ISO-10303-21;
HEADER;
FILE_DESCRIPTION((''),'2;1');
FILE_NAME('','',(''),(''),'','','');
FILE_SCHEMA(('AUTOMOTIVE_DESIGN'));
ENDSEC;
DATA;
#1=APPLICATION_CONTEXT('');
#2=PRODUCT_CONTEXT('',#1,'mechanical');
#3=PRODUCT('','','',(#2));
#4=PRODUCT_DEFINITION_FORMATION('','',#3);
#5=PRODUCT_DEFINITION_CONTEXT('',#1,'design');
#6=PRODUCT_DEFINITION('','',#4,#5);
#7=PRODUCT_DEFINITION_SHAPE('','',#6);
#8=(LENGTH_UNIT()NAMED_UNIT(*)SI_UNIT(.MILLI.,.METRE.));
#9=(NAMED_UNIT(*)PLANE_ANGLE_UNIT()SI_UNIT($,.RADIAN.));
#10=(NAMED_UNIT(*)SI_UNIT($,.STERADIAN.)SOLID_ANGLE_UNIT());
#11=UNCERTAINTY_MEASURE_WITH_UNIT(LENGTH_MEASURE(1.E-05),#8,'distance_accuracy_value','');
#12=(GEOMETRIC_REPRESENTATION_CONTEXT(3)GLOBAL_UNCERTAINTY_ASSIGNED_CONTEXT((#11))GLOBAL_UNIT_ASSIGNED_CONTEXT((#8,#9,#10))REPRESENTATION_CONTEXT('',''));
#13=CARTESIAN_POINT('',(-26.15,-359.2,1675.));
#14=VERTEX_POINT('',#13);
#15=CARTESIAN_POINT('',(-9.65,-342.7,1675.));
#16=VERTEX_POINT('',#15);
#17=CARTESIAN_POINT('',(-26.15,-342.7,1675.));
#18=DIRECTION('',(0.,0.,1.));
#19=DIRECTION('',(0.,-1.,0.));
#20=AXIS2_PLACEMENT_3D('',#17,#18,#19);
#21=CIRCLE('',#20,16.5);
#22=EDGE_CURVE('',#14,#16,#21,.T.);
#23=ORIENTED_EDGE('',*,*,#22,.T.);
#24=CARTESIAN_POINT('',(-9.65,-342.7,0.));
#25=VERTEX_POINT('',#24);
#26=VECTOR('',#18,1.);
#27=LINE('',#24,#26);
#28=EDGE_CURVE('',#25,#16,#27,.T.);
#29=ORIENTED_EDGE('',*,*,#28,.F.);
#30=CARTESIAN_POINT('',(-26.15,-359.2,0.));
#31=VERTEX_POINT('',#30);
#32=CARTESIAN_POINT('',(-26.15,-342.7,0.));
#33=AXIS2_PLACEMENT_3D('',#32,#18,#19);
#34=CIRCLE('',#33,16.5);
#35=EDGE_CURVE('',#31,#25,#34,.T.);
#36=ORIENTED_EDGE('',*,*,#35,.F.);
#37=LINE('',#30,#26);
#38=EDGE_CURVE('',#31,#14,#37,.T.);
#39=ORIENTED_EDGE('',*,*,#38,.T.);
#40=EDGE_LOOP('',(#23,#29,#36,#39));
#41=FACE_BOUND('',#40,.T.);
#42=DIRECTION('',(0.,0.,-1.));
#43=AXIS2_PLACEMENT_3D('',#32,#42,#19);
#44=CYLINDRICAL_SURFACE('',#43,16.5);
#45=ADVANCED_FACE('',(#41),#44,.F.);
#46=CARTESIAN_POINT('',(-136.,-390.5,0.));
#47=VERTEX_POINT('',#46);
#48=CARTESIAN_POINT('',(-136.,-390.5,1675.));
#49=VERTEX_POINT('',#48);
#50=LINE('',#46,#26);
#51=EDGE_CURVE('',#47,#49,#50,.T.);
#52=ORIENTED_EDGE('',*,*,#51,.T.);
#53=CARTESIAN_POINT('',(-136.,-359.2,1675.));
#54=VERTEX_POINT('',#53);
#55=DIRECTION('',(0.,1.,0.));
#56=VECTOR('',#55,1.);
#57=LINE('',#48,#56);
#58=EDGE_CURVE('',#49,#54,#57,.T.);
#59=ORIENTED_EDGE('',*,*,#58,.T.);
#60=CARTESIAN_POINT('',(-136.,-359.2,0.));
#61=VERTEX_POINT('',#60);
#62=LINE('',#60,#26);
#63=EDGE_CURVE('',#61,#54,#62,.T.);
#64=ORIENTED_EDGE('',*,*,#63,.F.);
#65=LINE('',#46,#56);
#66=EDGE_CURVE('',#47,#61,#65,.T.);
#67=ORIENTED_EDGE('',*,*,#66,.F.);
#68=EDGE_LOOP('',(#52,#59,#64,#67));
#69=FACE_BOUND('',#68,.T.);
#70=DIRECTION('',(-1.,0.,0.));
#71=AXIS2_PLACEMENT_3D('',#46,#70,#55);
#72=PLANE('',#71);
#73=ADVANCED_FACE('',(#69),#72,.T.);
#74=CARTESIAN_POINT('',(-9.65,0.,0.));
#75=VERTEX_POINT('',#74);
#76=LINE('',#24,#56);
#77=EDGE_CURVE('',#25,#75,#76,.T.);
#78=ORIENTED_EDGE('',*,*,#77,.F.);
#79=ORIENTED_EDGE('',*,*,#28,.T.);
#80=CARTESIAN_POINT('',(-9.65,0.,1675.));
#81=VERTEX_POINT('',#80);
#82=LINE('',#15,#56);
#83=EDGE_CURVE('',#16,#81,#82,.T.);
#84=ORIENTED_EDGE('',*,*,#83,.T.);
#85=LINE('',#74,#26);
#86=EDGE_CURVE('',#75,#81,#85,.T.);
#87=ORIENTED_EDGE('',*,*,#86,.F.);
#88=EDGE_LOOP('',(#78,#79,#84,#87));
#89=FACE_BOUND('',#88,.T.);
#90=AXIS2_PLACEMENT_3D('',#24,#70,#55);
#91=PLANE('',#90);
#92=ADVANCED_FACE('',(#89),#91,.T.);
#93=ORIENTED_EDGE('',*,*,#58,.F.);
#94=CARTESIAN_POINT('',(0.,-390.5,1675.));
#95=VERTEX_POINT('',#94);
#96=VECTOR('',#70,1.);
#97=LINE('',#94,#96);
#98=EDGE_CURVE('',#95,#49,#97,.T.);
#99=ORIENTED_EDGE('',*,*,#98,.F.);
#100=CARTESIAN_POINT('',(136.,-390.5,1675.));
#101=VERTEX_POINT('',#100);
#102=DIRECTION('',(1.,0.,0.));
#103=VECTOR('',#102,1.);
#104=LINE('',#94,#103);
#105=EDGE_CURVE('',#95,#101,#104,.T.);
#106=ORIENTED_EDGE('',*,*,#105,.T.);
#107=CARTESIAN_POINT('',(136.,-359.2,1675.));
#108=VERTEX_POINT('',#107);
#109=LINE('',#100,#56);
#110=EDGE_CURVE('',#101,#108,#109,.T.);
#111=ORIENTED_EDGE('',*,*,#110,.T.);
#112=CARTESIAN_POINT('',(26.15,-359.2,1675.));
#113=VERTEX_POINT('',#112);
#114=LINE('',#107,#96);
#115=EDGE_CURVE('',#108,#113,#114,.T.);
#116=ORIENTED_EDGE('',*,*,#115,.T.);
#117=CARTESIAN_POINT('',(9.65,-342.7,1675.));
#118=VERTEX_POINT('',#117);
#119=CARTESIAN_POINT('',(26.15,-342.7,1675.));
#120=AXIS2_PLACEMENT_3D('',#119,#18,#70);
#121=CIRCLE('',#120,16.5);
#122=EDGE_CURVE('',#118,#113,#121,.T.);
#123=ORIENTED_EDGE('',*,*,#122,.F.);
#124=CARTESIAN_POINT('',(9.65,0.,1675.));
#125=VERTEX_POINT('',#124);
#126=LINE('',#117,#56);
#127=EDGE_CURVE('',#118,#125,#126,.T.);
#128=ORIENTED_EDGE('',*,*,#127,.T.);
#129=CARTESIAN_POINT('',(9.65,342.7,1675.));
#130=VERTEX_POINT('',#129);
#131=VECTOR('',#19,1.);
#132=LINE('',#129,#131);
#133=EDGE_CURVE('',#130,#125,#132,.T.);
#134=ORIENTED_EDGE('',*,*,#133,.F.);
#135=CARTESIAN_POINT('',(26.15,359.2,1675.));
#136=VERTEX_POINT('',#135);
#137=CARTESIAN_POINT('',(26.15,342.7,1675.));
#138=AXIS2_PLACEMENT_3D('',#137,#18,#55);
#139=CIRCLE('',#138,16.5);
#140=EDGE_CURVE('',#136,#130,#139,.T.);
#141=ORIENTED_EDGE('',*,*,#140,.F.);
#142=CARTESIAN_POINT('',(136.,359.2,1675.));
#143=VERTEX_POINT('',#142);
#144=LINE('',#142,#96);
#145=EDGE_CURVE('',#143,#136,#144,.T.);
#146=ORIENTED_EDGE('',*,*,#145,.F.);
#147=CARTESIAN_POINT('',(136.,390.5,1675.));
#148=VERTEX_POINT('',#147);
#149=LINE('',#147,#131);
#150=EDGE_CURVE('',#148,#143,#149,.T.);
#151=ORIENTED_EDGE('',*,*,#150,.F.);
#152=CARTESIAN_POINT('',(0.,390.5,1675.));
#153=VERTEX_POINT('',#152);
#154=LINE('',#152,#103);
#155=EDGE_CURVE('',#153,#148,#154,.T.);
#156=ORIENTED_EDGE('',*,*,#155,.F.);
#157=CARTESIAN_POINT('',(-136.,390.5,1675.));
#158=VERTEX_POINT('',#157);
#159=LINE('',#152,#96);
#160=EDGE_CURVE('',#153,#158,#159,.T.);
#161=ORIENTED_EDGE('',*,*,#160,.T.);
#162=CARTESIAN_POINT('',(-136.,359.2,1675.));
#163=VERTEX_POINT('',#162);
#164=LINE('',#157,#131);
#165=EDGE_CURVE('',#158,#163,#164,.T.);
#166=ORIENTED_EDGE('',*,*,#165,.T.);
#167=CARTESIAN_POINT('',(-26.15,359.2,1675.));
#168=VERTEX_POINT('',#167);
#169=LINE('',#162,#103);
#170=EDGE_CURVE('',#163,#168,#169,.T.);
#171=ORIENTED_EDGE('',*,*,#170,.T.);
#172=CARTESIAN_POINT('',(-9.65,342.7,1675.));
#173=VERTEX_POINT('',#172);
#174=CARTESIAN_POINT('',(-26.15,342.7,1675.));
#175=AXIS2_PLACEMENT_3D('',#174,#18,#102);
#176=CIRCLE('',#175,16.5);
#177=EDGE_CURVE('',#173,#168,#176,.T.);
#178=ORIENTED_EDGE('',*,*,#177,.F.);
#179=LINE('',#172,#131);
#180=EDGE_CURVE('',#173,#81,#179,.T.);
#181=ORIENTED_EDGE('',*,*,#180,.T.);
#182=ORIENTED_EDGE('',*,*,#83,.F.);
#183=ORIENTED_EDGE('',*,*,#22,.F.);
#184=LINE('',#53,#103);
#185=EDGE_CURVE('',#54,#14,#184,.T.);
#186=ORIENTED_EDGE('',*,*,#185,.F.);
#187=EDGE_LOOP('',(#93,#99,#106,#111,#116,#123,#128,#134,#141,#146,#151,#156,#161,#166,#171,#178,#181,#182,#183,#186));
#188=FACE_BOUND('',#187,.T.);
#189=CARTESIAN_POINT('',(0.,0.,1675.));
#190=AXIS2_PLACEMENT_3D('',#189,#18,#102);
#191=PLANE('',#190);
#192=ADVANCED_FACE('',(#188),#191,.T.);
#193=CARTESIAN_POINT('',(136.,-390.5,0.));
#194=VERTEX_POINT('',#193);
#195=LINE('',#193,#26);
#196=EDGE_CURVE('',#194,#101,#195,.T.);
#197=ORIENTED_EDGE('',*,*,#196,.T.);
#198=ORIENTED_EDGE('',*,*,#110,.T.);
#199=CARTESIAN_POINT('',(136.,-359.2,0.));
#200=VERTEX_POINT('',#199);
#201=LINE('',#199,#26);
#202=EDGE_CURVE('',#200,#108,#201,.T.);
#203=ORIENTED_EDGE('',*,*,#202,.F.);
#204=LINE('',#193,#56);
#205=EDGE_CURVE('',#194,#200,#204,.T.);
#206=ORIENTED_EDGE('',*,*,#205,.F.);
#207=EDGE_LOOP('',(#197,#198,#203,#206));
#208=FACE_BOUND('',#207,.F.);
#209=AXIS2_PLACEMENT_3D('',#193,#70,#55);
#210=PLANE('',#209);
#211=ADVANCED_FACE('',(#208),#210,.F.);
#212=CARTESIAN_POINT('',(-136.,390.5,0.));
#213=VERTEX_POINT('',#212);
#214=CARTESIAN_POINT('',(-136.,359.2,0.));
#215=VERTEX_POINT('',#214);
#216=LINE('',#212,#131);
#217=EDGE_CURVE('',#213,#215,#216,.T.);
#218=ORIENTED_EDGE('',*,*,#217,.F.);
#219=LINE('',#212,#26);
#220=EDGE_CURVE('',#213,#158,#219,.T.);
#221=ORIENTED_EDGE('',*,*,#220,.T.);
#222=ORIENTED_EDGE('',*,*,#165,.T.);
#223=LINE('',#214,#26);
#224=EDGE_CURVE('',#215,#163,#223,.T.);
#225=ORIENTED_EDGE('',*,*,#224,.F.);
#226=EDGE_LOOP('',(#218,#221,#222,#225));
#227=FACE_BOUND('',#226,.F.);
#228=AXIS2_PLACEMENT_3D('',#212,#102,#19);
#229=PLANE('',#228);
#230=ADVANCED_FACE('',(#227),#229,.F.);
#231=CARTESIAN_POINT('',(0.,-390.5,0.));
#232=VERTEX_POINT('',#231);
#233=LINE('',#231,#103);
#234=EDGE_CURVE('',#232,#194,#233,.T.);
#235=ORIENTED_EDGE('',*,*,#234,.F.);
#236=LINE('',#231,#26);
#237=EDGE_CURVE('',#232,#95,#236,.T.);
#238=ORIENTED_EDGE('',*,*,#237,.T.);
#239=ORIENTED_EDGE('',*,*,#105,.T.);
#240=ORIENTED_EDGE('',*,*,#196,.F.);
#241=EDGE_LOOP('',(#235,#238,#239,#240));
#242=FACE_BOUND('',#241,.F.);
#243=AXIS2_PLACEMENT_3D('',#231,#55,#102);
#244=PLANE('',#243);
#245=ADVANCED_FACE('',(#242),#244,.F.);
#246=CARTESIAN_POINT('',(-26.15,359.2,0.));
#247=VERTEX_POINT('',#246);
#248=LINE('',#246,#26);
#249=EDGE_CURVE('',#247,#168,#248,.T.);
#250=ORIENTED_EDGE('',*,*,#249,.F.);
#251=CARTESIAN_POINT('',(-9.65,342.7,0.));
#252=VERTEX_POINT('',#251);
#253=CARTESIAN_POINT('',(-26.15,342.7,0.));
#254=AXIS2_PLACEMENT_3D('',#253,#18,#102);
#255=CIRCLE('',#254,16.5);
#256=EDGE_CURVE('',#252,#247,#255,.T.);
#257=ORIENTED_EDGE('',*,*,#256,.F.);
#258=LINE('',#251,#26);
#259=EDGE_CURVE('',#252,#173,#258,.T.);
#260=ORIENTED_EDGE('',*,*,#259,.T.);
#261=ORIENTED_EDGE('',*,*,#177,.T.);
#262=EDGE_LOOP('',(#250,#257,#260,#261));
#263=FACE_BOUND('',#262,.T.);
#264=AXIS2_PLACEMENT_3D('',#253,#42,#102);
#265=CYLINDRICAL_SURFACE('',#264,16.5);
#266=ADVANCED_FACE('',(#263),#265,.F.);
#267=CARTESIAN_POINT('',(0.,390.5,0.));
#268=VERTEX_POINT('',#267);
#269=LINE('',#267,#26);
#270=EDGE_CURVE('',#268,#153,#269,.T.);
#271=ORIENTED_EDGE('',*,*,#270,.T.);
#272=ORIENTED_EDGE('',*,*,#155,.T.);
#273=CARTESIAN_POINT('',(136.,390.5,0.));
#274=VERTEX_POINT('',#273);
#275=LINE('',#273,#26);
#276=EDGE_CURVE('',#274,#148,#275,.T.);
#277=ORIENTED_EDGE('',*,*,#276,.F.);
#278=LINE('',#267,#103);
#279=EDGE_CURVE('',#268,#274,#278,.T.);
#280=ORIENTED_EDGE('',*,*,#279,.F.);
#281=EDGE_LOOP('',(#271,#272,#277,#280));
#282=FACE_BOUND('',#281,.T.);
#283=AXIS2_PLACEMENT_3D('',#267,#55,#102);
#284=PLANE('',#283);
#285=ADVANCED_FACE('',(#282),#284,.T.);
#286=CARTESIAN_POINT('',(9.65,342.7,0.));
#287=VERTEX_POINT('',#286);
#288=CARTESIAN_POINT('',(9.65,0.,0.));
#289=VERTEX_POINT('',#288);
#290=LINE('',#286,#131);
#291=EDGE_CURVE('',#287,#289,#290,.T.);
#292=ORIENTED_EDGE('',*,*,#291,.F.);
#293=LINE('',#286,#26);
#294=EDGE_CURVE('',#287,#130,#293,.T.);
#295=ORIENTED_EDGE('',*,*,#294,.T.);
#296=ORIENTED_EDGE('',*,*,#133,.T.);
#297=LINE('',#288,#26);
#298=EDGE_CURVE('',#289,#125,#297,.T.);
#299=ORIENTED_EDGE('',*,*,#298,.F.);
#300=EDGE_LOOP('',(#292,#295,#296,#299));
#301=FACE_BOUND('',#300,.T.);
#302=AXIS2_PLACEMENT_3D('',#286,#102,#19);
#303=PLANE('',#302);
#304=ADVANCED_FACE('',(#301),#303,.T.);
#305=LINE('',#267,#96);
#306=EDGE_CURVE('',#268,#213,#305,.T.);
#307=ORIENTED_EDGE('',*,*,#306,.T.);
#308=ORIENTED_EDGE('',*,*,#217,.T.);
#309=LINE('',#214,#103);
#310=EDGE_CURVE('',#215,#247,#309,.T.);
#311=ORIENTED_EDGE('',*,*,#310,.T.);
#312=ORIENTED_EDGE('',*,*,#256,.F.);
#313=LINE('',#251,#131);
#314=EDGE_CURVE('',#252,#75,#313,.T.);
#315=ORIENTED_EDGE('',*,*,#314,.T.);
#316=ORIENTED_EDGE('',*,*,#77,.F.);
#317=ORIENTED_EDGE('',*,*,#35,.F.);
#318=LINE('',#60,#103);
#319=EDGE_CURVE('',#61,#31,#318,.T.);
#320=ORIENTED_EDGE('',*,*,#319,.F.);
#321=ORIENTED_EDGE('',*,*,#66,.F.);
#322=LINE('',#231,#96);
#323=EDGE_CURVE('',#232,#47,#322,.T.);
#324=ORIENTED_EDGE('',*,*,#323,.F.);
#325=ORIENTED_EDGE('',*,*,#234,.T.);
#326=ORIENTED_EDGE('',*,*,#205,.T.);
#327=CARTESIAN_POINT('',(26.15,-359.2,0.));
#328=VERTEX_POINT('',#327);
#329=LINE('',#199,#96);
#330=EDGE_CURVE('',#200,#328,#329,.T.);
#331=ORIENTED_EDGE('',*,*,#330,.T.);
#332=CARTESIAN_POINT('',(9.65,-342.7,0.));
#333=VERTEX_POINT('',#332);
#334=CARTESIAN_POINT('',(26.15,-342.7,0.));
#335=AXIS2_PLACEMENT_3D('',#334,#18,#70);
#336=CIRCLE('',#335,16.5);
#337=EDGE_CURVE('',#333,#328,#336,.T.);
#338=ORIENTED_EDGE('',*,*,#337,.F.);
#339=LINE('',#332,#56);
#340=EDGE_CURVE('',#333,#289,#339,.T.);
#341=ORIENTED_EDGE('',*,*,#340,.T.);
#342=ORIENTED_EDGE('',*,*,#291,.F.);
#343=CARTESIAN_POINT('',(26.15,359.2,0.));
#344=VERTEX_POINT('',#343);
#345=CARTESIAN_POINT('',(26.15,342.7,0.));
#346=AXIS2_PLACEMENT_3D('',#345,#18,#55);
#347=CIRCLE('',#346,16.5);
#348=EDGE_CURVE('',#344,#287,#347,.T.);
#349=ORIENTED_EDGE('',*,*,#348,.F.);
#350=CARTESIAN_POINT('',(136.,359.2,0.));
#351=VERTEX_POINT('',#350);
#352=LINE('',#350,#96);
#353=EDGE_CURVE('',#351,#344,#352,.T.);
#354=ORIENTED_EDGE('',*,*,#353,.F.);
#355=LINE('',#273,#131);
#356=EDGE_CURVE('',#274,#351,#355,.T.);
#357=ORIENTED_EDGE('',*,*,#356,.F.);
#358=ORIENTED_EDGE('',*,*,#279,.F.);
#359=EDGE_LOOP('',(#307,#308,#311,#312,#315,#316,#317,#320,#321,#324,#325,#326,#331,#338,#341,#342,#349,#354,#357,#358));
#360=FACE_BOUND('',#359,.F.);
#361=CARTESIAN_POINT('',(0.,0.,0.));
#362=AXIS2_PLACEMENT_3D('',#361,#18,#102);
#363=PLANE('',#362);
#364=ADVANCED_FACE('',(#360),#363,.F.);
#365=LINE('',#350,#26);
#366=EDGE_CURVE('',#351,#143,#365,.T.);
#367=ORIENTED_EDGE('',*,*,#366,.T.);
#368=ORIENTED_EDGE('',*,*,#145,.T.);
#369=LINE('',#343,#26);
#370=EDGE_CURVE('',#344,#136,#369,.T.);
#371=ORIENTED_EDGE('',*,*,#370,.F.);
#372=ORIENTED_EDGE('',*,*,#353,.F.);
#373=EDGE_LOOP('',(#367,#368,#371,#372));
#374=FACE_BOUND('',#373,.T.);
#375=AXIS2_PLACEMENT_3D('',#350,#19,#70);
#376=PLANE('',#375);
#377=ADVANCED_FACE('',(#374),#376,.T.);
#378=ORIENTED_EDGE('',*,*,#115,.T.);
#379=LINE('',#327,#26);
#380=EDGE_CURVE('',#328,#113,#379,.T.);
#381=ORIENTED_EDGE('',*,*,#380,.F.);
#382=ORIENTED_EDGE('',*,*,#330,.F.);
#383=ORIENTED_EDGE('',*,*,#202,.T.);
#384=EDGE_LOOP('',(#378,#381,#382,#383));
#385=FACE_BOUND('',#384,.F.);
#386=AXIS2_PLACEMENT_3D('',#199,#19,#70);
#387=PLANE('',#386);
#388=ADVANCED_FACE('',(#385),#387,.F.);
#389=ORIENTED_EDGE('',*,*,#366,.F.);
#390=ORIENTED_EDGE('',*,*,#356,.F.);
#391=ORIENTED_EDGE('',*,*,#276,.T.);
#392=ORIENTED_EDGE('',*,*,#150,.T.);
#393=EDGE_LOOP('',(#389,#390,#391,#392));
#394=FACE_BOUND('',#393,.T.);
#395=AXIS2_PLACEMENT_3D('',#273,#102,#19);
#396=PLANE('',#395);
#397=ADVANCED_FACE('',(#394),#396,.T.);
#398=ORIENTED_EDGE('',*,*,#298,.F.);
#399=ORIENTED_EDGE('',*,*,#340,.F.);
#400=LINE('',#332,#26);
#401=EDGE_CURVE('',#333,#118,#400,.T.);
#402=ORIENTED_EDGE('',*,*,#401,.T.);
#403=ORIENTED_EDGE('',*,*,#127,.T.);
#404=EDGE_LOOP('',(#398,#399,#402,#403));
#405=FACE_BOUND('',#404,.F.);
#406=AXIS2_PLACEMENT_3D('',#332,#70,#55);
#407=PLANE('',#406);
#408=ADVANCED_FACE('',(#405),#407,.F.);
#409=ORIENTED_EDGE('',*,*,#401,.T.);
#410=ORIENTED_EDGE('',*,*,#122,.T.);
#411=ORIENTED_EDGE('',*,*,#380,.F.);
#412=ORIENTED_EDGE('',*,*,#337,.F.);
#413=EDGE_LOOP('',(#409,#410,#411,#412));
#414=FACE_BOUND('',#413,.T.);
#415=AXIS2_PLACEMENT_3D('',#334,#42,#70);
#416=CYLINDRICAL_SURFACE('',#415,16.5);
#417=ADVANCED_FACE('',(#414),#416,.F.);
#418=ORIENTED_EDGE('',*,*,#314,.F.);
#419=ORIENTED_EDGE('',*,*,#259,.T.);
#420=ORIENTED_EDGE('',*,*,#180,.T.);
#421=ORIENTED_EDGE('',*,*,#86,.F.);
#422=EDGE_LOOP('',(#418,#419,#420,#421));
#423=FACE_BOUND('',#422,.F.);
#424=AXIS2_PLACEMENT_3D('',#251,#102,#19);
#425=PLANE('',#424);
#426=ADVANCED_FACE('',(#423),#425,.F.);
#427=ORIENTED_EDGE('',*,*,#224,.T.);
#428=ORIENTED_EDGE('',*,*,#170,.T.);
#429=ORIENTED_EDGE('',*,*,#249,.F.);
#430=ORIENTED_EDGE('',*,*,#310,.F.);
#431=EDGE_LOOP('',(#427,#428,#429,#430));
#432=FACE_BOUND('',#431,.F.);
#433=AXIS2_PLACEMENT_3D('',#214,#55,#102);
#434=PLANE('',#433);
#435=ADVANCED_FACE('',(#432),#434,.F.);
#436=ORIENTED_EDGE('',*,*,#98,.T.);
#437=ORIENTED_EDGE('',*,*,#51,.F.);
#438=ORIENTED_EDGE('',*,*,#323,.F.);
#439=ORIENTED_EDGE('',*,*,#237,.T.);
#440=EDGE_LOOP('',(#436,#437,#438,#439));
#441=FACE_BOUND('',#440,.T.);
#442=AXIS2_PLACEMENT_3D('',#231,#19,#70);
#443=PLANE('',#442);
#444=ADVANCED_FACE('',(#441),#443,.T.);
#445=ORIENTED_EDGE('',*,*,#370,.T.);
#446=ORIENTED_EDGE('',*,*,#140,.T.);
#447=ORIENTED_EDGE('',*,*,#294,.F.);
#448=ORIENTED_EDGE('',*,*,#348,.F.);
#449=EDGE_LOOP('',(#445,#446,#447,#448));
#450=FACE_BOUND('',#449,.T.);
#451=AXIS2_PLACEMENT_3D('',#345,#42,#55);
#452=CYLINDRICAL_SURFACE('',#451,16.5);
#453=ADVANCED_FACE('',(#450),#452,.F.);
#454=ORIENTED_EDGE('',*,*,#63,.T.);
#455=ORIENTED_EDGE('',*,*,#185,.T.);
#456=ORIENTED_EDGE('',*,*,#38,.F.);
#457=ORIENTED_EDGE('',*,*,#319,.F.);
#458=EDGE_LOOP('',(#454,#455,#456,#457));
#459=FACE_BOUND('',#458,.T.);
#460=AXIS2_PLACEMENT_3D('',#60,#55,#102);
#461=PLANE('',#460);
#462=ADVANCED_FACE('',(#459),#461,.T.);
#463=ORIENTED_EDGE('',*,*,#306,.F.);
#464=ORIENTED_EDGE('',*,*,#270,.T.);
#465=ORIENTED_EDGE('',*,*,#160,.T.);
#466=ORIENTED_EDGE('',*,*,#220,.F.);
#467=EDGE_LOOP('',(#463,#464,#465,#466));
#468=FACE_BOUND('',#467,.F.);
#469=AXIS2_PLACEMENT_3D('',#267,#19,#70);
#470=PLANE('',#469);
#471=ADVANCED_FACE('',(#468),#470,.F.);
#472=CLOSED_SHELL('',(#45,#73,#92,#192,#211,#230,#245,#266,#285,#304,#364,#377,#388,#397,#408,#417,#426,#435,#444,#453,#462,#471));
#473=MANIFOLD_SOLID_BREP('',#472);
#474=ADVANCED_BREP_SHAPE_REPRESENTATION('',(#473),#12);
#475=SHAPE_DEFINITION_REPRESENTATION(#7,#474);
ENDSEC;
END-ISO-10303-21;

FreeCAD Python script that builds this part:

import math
import FreeCAD as App
import Part
import Sketcher
from FreeCAD import Vector

doc = App.newDocument("Part")
body = doc.addObject("PartDesign::Body", "Body")

sketch1 = doc.addObject("Sketcher::SketchObject", "Sketch")
body.addObject(sketch1)
sketch1.AttachmentSupport = (doc.XY_Plane, [""])
sketch1.MapMode = "FlatFace"
sketch1.addGeometry([
    Part.LineSegment(Vector(-136, -359, 0), Vector(-136, -390, 0)),
    Part.LineSegment(Vector(-136, -390, 0), Vector(136, -390, 0)),
    Part.LineSegment(Vector(136, -390, 0), Vector(136, -359, 0)),
    Part.LineSegment(Vector(136, -359, 0), Vector(26, -359, 0)),
    Part.ArcOfCircle(Part.Circle(Vector(26, -343, 0), Vector(0, 0, 1), 16), math.radians(180), math.radians(270)),
    Part.LineSegment(Vector(10, -343, 0), Vector(10, 343, 0)),
    Part.ArcOfCircle(Part.Circle(Vector(26, 343, 0), Vector(0, 0, 1), 16), math.radians(90), math.radians(180)),
    Part.LineSegment(Vector(26, 359, 0), Vector(136, 359, 0)),
    Part.LineSegment(Vector(136, 359, 0), Vector(136, 390, 0)),
    Part.LineSegment(Vector(136, 390, 0), Vector(-136, 390, 0)),
    Part.LineSegment(Vector(-136, 390, 0), Vector(-136, 359, 0)),
    Part.LineSegment(Vector(-136, 359, 0), Vector(-26, 359, 0)),
    Part.ArcOfCircle(Part.Circle(Vector(-26, 343, 0), Vector(0, 0, 1), 16), math.radians(0), math.radians(90)),
    Part.LineSegment(Vector(-10, 343, 0), Vector(-10, -343, 0)),
    Part.ArcOfCircle(Part.Circle(Vector(-26, -343, 0), Vector(0, 0, 1), 16), math.radians(-90), math.radians(0)),
    Part.LineSegment(Vector(-26, -359, 0), Vector(-136, -359, 0)),
], False)
sketch1.addConstraint([
    Sketcher.Constraint("Coincident", 0, 2, 1, 1),
    Sketcher.Constraint("Coincident", 1, 2, 2, 1),
    Sketcher.Constraint("Coincident", 2, 2, 3, 1),
    Sketcher.Constraint("Tangent", 3, 2, 4, 2),
    Sketcher.Constraint("Tangent", 4, 1, 5, 1),
    Sketcher.Constraint("Tangent", 5, 2, 6, 2),
    Sketcher.Constraint("Tangent", 6, 1, 7, 1),
    Sketcher.Constraint("Coincident", 7, 2, 8, 1),
    Sketcher.Constraint("Coincident", 8, 2, 9, 1),
    Sketcher.Constraint("Coincident", 9, 2, 10, 1),
    Sketcher.Constraint("Coincident", 10, 2, 11, 1),
    Sketcher.Constraint("Tangent", 11, 2, 12, 2),
    Sketcher.Constraint("Tangent", 12, 1, 13, 1),
    Sketcher.Constraint("Tangent", 13, 2, 14, 2),
    Sketcher.Constraint("Tangent", 14, 1, 15, 1),
    Sketcher.Constraint("Coincident", 15, 2, 0, 1),
    Sketcher.Constraint("Vertical", 0),
    Sketcher.Constraint("Horizontal", 1),
    Sketcher.Constraint("Vertical", 2),
    Sketcher.Constraint("Horizontal", 3),
    Sketcher.Constraint("Vertical", 5),
    Sketcher.Constraint("Horizontal", 7),
    Sketcher.Constraint("Vertical", 8),
    Sketcher.Constraint("Horizontal", 9),
    Sketcher.Constraint("Vertical", 10),
    Sketcher.Constraint("Horizontal", 11),
    Sketcher.Constraint("Vertical", 13),
    Sketcher.Constraint("Horizontal", 15),
    Sketcher.Constraint("Equal", 4, 6),
    Sketcher.Constraint("Equal", 6, 12),
    Sketcher.Constraint("Equal", 12, 14),
    Sketcher.Constraint("Symmetric", 4, 3, 12, 3, -1, 1),
    Sketcher.Constraint("Symmetric", 0, 2, 8, 2, -1, 1),
    Sketcher.Constraint("Symmetric", 7, 2, 10, 2, -2),
    Sketcher.Constraint("Symmetric", 2, 2, 15, 2, -2),
    Sketcher.Constraint("Radius", 4, 16.5),
    Sketcher.Constraint("DistanceY", 0, 2, 0, 1, 31.3),
    Sketcher.Constraint("DistanceX", 0, 2, -1, 1, 136.0),
    Sketcher.Constraint("DistanceY", 0, 2, -1, 1, 390.5),
    Sketcher.Constraint("DistanceX", -1, 1, 4, 1, 9.65),
])
pad1 = doc.addObject("PartDesign::Pad", "Pad")
body.addObject(pad1)
pad1.Profile = sketch1
pad1.Length = 1675

doc.recompute()
